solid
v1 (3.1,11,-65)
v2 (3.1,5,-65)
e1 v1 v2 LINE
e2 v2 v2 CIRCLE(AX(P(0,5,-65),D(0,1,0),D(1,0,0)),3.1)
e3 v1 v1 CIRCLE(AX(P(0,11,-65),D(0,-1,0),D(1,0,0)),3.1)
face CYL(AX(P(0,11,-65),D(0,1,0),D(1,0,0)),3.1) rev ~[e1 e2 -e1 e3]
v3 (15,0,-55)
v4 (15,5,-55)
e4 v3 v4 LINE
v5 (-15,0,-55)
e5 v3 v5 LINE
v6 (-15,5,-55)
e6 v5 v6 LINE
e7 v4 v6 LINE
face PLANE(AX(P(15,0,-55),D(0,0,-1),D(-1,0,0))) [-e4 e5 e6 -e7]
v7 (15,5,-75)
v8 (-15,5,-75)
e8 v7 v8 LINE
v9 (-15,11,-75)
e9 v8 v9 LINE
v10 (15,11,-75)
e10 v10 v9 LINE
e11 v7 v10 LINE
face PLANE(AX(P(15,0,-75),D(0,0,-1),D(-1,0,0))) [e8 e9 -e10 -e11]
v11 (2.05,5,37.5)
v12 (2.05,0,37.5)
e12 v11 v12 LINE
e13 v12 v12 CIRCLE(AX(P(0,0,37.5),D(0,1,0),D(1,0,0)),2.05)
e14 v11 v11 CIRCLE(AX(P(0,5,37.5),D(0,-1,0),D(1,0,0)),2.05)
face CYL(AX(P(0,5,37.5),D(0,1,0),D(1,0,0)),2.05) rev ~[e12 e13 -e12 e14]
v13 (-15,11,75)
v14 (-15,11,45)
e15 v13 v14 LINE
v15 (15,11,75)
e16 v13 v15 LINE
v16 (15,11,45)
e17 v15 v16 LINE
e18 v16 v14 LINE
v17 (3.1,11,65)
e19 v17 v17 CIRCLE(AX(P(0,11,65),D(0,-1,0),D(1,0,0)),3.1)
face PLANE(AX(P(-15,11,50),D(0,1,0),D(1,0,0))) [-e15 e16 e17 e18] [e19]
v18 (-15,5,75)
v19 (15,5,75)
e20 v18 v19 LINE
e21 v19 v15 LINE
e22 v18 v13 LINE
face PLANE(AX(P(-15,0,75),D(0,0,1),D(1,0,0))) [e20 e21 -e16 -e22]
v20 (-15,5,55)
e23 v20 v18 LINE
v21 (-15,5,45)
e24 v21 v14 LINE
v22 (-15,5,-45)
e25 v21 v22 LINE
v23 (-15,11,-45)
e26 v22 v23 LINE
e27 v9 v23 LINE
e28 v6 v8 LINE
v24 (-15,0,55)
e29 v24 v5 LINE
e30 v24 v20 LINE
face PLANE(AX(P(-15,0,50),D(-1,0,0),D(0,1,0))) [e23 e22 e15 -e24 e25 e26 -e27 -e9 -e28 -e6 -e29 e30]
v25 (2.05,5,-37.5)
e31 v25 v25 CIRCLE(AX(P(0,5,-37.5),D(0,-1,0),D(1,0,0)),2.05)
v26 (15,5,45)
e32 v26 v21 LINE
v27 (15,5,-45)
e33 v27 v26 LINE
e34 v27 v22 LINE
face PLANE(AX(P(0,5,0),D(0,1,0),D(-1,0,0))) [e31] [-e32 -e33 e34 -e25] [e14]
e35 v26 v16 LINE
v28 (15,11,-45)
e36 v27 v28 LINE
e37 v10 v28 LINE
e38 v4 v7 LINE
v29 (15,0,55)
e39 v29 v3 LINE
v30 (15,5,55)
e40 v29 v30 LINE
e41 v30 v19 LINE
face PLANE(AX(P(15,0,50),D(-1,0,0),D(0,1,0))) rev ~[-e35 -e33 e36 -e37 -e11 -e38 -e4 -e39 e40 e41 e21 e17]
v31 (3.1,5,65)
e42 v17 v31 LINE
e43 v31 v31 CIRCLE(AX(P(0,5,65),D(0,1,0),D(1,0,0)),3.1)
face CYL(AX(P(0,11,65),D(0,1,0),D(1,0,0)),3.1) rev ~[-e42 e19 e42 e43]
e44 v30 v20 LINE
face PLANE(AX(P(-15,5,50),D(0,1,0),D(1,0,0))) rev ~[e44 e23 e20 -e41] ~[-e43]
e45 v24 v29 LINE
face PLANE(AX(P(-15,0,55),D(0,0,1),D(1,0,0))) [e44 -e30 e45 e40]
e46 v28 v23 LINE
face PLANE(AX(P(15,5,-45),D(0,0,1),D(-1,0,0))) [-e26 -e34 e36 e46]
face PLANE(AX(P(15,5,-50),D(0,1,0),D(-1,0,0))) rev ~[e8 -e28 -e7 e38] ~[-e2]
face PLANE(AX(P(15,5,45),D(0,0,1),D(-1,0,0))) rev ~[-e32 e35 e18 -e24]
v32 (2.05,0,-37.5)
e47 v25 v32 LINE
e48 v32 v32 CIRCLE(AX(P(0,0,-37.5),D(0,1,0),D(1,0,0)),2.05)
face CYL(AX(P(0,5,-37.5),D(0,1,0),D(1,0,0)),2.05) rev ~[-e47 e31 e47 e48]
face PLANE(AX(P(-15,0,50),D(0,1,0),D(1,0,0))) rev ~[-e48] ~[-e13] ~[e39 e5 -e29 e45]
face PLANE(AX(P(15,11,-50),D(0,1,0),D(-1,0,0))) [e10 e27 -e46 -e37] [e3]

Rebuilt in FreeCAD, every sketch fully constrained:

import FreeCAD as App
import Part
import Sketcher


def add_polygon(sketch, points):
    """Adds a closed chain of lines whose ends are joined by coincident constraints."""
    first, n = sketch.GeometryCount, len(points)
    for a, b in zip(points, points[1:] + points[:1]):
        sketch.addGeometry(Part.LineSegment(App.Vector(*a, 0), App.Vector(*b, 0)), False)
    for i in range(n):
        sketch.addConstraint(Sketcher.Constraint("Coincident", first + i, 2, first + (i + 1) % n, 1))

doc = App.newDocument("Part")
body = doc.addObject("PartDesign::Body", "Body")

# Sketch on XZ plane
sketch1 = doc.addObject("Sketcher::SketchObject", "Sketch")
body.addObject(sketch1)
sketch1.AttachmentSupport = (doc.XZ_Plane, [""])
sketch1.MapMode = "FlatFace"
add_polygon(sketch1, [(-15, 50), (15, 50), (15, -50), (-15, -50)])  # lines 0-3
sketch1.addConstraint([
    Sketcher.Constraint("Horizontal", 0),
    Sketcher.Constraint("Vertical", 1),
    Sketcher.Constraint("Horizontal", 2),
    Sketcher.Constraint("Vertical", 3),
    Sketcher.Constraint("Symmetric", 0, 2, 2, 2, -1, 1),
    Sketcher.Constraint("DistanceX", 0, 1, 0, 2, 30.0),
    Sketcher.Constraint("DistanceY", 1, 2, 1, 1, 100.0),
])
pad1 = doc.addObject("PartDesign::Pad", "Pad")
body.addObject(pad1)
pad1.Profile = sketch1
pad1.Length = 5
pad1.Reversed = True

# Sketch on XZ plane
sketch2 = doc.addObject("Sketcher::SketchObject", "Sketch001")
body.addObject(sketch2)
sketch2.AttachmentSupport = (doc.XZ_Plane, [""])
sketch2.MapMode = "FlatFace"
sketch2.AttachmentOffset = App.Placement(App.Vector(0, 0, -5), App.Rotation())
add_polygon(sketch2, [(-15, 45), (-15, 50), (15, 50), (15, 45)])  # lines 0-3
add_polygon(sketch2, [(-15, -45), (15, -45), (15, -50), (-15, -50)])  # lines 4-7
sketch2.addConstraint([
    Sketcher.Constraint("Vertical", 0),
    Sketcher.Constraint("Horizontal", 1),
    Sketcher.Constraint("Vertical", 2),
    Sketcher.Constraint("Horizontal", 3),
    Sketcher.Constraint("Horizontal", 4),
    Sketcher.Constraint("Vertical", 5),
    Sketcher.Constraint("Horizontal", 6),
    Sketcher.Constraint("Vertical", 7),
    Sketcher.Constraint("Symmetric", 3, 2, 4, 2, -1, 1),
    Sketcher.Constraint("Symmetric", 1, 2, 6, 2, -1, 1),
    Sketcher.Constraint("Vertical", 2, 2, 4, 2),
    Sketcher.Constraint("DistanceY", 0, 1, 0, 2, 5.0),
    Sketcher.Constraint("DistanceX", 0, 2, -1, 1, 15.0),
    Sketcher.Constraint("DistanceY", -1, 1, 0, 2, 50.0),
])
pad2 = doc.addObject("PartDesign::Pad", "Pad001")
body.addObject(pad2)
pad2.Profile = sketch2
pad2.Length = 6
pad2.Reversed = True

# Sketch on XY plane
sketch3 = doc.addObject("Sketcher::SketchObject", "Sketch002")
body.addObject(sketch3)
sketch3.AttachmentSupport = (doc.XY_Plane, [""])
sketch3.MapMode = "FlatFace"
sketch3.AttachmentOffset = App.Placement(App.Vector(0, 0, 50), App.Rotation())
add_polygon(sketch3, [(-15, 11), (-15, 5), (15, 5), (15, 11)])  # lines 0-3
sketch3.addConstraint([
    Sketcher.Constraint("Vertical", 0),
    Sketcher.Constraint("Horizontal", 1),
    Sketcher.Constraint("Vertical", 2),
    Sketcher.Constraint("Horizontal", 3),
    Sketcher.Constraint("DistanceX", 1, 1, 1, 2, 30.0),
    Sketcher.Constraint("DistanceY", 0, 2, 0, 1, 6.0),
    Sketcher.Constraint("DistanceX", 0, 2, -1, 1, 15.0),
    Sketcher.Constraint("DistanceY", -1, 1, 0, 2, 5.0),
])
pad3 = doc.addObject("PartDesign::Pad", "Pad002")
body.addObject(pad3)
pad3.Profile = sketch3
pad3.Length = 25

# Sketch on XY plane
sketch4 = doc.addObject("Sketcher::SketchObject", "Sketch003")
body.addObject(sketch4)
sketch4.AttachmentSupport = (doc.XY_Plane, [""])
sketch4.MapMode = "FlatFace"
sketch4.AttachmentOffset = App.Placement(App.Vector(0, 0, -50), App.Rotation())
add_polygon(sketch4, [(15, 11), (15, 5), (-15, 5), (-15, 11)])  # lines 0-3
sketch4.addConstraint([
    Sketcher.Constraint("Vertical", 0),
    Sketcher.Constraint("Horizontal", 1),
    Sketcher.Constraint("Vertical", 2),
    Sketcher.Constraint("Horizontal", 3),
    Sketcher.Constraint("DistanceX", 1, 2, 1, 1, 30.0),
    Sketcher.Constraint("DistanceY", 0, 2, 0, 1, 6.0),
    Sketcher.Constraint("DistanceX", -1, 1, 0, 2, 15.0),
    Sketcher.Constraint("DistanceY", -1, 1, 0, 2, 5.0),
])
pad4 = doc.addObject("PartDesign::Pad", "Pad003")
body.addObject(pad4)
pad4.Profile = sketch4
pad4.Length = 25
pad4.Reversed = True

# Sketch on XY plane
sketch5 = doc.addObject("Sketcher::SketchObject", "Sketch004")
body.addObject(sketch5)
sketch5.AttachmentSupport = (doc.XY_Plane, [""])
sketch5.MapMode = "FlatFace"
sketch5.AttachmentOffset = App.Placement(App.Vector(0, 0, -50), App.Rotation())
add_polygon(sketch5, [(-15, 5), (15, 5), (15, 0), (-15, 0)])  # lines 0-3
sketch5.addConstraint([
    Sketcher.Constraint("Horizontal", 0),
    Sketcher.Constraint("Vertical", 1),
    Sketcher.Constraint("Horizontal", 2),
    Sketcher.Constraint("Vertical", 3),
    Sketcher.Constraint("Symmetric", 1, 2, 2, 2, -1, 1),
    Sketcher.Constraint("DistanceX", 0, 1, 0, 2, 30.0),
    Sketcher.Constraint("DistanceY", 1, 2, 1, 1, 5.0),
])
pad5 = doc.addObject("PartDesign::Pad", "Pad004")
body.addObject(pad5)
pad5.Profile = sketch5
pad5.Length = 5
pad5.Reversed = True

# Sketch on XY plane
sketch6 = doc.addObject("Sketcher::SketchObject", "Sketch005")
body.addObject(sketch6)
sketch6.AttachmentSupport = (doc.XY_Plane, [""])
sketch6.MapMode = "FlatFace"
sketch6.AttachmentOffset = App.Placement(App.Vector(0, 0, 50), App.Rotation())
add_polygon(sketch6, [(15, 0), (15, 5), (-15, 5), (-15, 0)])  # lines 0-3
sketch6.addConstraint([
    Sketcher.Constraint("Vertical", 0),
    Sketcher.Constraint("Horizontal", 1),
    Sketcher.Constraint("Vertical", 2),
    Sketcher.Constraint("Horizontal", 3),
    Sketcher.Constraint("Symmetric", 2, 2, 3, 2, -1, 1),
    Sketcher.Constraint("DistanceX", 1, 2, 1, 1, 30.0),
    Sketcher.Constraint("DistanceY", 0, 1, 0, 2, 5.0),
])
pad6 = doc.addObject("PartDesign::Pad", "Pad005")
body.addObject(pad6)
pad6.Profile = sketch6
pad6.Length = 5

# Sketch on XZ plane
sketch7 = doc.addObject("Sketcher::SketchObject", "Sketch006")
body.addObject(sketch7)
sketch7.AttachmentSupport = (doc.XZ_Plane, [""])
sketch7.MapMode = "FlatFace"
sketch7.AttachmentOffset = App.Placement(App.Vector(0, 0, -5), App.Rotation())
sketch7.addGeometry([
    Part.Circle(App.Vector(0, -37.5, 0), App.Vector(0, 0, 1), 2.05),
    Part.Circle(App.Vector(0, 37.5, 0), App.Vector(0, 0, 1), 2.05),
], False)
sketch7.addConstraint([
    Sketcher.Constraint("Equal", 0, 1),
    Sketcher.Constraint("Symmetric", 0, 3, 1, 3, -1, 1),
    Sketcher.Constraint("PointOnObject", 0, 3, -2),
    Sketcher.Constraint("Diameter", 0, 4.1),
    Sketcher.Constraint("DistanceY", 0, 3, 1, 3, 75.0),
])
pocket1 = doc.addObject("PartDesign::Pocket", "Pocket")
body.addObject(pocket1)
pocket1.Profile = sketch7
pocket1.Length = 5
pocket1.Reversed = True

# Sketch on XZ plane
sketch8 = doc.addObject("Sketcher::SketchObject", "Sketch007")
body.addObject(sketch8)
sketch8.AttachmentSupport = (doc.XZ_Plane, [""])
sketch8.MapMode = "FlatFace"
sketch8.AttachmentOffset = App.Placement(App.Vector(0, 0, -11), App.Rotation())
sketch8.addGeometry([
    Part.Circle(App.Vector(0, 65, 0), App.Vector(0, 0, 1), 3.1),
    Part.Circle(App.Vector(0, -65, 0), App.Vector(0, 0, 1), 3.1),
], False)
sketch8.addConstraint([
    Sketcher.Constraint("Equal", 0, 1),
    Sketcher.Constraint("Symmetric", 0, 3, 1, 3, -1, 1),
    Sketcher.Constraint("PointOnObject", 0, 3, -2),
    Sketcher.Constraint("Diameter", 0, 6.2),
    Sketcher.Constraint("DistanceY", -1, 1, 0, 3, 65.0),
])
pocket2 = doc.addObject("PartDesign::Pocket", "Pocket001")
body.addObject(pocket2)
pocket2.Profile = sketch8
pocket2.Length = 7
pocket2.Reversed = True

doc.recompute()
